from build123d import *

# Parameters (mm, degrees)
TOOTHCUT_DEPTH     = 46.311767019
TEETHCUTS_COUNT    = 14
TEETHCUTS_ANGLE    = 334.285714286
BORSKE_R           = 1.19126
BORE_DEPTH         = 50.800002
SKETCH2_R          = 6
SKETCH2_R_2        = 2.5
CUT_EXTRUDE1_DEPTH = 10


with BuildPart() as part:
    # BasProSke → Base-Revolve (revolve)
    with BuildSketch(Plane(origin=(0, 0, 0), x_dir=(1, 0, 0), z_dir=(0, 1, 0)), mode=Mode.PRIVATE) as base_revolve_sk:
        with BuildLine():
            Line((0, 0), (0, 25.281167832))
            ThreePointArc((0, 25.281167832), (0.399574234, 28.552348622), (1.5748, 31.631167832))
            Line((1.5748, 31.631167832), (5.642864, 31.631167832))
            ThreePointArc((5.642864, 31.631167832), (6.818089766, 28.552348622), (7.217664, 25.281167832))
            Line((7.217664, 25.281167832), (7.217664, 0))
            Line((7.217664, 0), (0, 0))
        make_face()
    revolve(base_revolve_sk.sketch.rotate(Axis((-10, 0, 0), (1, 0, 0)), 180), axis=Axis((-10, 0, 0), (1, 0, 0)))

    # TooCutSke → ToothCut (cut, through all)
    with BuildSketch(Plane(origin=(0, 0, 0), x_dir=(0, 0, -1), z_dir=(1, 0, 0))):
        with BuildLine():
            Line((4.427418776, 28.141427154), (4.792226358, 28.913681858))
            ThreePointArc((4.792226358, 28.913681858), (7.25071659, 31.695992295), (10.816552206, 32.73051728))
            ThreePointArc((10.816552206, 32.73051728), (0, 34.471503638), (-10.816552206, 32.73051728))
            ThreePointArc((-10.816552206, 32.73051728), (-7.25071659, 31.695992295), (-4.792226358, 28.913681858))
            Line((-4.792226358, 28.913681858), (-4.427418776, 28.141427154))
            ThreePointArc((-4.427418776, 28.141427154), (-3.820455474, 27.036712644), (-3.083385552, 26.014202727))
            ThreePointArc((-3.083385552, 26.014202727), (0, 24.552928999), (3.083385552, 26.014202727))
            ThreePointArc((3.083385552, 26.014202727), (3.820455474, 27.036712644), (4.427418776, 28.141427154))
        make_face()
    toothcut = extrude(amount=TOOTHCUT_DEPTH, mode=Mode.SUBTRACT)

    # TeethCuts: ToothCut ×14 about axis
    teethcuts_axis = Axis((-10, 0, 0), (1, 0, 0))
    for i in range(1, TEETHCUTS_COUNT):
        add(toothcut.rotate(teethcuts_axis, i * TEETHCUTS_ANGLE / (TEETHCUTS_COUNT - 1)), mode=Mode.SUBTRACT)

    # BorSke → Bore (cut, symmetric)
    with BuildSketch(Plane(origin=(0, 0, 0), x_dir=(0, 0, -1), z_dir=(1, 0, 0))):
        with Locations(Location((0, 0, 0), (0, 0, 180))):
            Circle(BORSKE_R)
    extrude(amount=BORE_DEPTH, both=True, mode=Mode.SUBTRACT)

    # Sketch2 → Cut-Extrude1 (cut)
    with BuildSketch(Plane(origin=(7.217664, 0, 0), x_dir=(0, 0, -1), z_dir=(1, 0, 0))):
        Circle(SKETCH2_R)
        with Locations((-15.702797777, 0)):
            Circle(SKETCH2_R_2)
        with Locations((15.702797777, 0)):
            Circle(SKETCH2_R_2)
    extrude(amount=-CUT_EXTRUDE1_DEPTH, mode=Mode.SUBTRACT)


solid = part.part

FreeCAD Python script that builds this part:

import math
import FreeCAD as App
import Part
import Sketcher

V = App.Vector
Q = App.Units.Quantity

doc = App.newDocument("Part")
params = doc.addObject("Spreadsheet::Sheet", "Params")
for row, (alias, value) in enumerate([
    ("revolution_angle", "360 deg"),
    ("pocket2_length", "101.600004 mm"),
    ("sketch4_diameter", "12 mm"),
    ("sketch4_diameter2", "5 mm"),
    ("pocket3_length", "10 mm"),
], start=1):
    params.set(f"A{row}", alias)
    params.set(f"B{row}", "=" + value)
    params.setAlias(f"B{row}", alias)

body = doc.addObject("PartDesign::Body", "Body")

# Sketch on XZ plane
sketch1 = body.newObject("Sketcher::SketchObject", "Sketch")
sketch1.AttachmentSupport = (doc.getObject("XZ_Plane"), [""])
sketch1.MapMode = "FlatFace"
sketch1.addGeometry(Part.LineSegment(V(0, -25.281168, 0), V(0, 0, 0)), False)
sketch1.addGeometry(Part.LineSegment(V(0, 0, 0), V(7.217664, 0, 0)), False)
sketch1.addGeometry(Part.LineSegment(V(7.217664, 0, 0), V(7.217664, -25.281168, 0)), False)
sketch1.addGeometry(Part.ArcOfCircle(Part.Circle(V(-6.372155, -25.281168, 0), V(0, 0, 1), 13.589819), math.radians(-27.856684), math.radians(0)), False)
sketch1.addGeometry(Part.LineSegment(V(5.642864, -31.631168, 0), V(1.5748, -31.631168, 0)), False)
sketch1.addGeometry(Part.ArcOfCircle(Part.Circle(V(13.589819, -25.281168, 0), V(0, 0, 1), 13.589819), math.radians(180), math.radians(207.856684)), False)
sketch1.addConstraint(Sketcher.Constraint("Coincident", 0, 2, 1, 1))
sketch1.addConstraint(Sketcher.Constraint("Coincident", 1, 2, 2, 1))
sketch1.addConstraint(Sketcher.Constraint("Tangent", 2, 2, 3, 2))
sketch1.addConstraint(Sketcher.Constraint("Coincident", 3, 1, 4, 1))
sketch1.addConstraint(Sketcher.Constraint("Coincident", 4, 2, 5, 2))
sketch1.addConstraint(Sketcher.Constraint("Tangent", 5, 1, 0, 1))
sketch1.addConstraint(Sketcher.Constraint("Vertical", 0))
sketch1.addConstraint(Sketcher.Constraint("Horizontal", 1))
sketch1.addConstraint(Sketcher.Constraint("Vertical", 2))
sketch1.addConstraint(Sketcher.Constraint("Horizontal", 4))
sketch1.addConstraint(Sketcher.Constraint("Coincident", 0, 2, -1, 1))
sketch1.addConstraint(Sketcher.Constraint("Equal", 3, 5))
sketch1.addConstraint(Sketcher.Constraint("Horizontal", 3, 3, 5, 3))
sketch1.addConstraint(Sketcher.Constraint("Radius", 3, Q("13.589819 mm")))
sketch1.addConstraint(Sketcher.Constraint("DistanceY", 3, 1, 2, 2, Q("6.35 mm")))
sketch1.addConstraint(Sketcher.Constraint("DistanceX", 1, 1, 1, 2, Q("7.217664 mm")))
sketch1.addConstraint(Sketcher.Constraint("DistanceY", 0, 1, 0, 2, Q("25.281168 mm")))
revolution = body.newObject("PartDesign::Revolution", "Revolution")
revolution.Profile = sketch1
revolution.ReferenceAxis = (sketch1, ["H_Axis"])
revolution.setExpression("Angle", "Params.revolution_angle")

# Sketch on YZ plane
sketch2 = body.newObject("Sketcher::SketchObject", "Sketch001")
sketch2.AttachmentSupport = (doc.getObject("YZ_Plane"), [""])
sketch2.MapMode = "FlatFace"
sketch2.addGeometry(Part.LineSegment(V(28.141427, -4.427419, 0), V(28.913682, -4.792226, 0)), False)
sketch2.addGeometry(Part.ArcOfCircle(Part.Circle(V(26.067834, -10.816552, 0), V(0, 0, 1), 6.662684), math.radians(0), math.radians(64.714286)), False)
sketch2.addGeometry(Part.ArcOfCircle(Part.Circle(V(0, 0, 0), V(0, 0, 1), 34.471504), math.radians(-18.287326), math.radians(18.287326)), False)
sketch2.addGeometry(Part.ArcOfCircle(Part.Circle(V(26.067834, 10.816552, 0), V(0, 0, 1), 6.662684), math.radians(-64.714286), math.radians(0)), False)
sketch2.addGeometry(Part.LineSegment(V(28.913682, 4.792226, 0), V(28.141427, 4.427419, 0)), False)
sketch2.addGeometry(Part.ArcOfCircle(Part.Circle(V(32.550951, -4.907024, 0), V(0, 0, 1), 10.323552), math.radians(115.285714), math.radians(129.285714)), False)
sketch2.addGeometry(Part.ArcOfCircle(Part.Circle(V(28.536641, 0, 0), V(0, 0, 1), 3.983712), math.radians(129.285714), math.radians(230.714286)), False)
sketch2.addGeometry(Part.ArcOfCircle(Part.Circle(V(32.550951, 4.907024, 0), V(0, 0, 1), 10.323552), math.radians(-129.285714), math.radians(-115.285714)), False)
sketch2.addConstraint(Sketcher.Constraint("Tangent", 0, 2, 1, 2))
sketch2.addConstraint(Sketcher.Constraint("Coincident", 1, 1, 2, 1))
sketch2.addConstraint(Sketcher.Constraint("Coincident", 2, 2, 3, 2))
sketch2.addConstraint(Sketcher.Constraint("Tangent", 3, 1, 4, 1))
sketch2.addConstraint(Sketcher.Constraint("Tangent", 4, 2, 5, 1))
sketch2.addConstraint(Sketcher.Constraint("Tangent", 5, 2, 6, 1))
sketch2.addConstraint(Sketcher.Constraint("Tangent", 6, 2, 7, 1))
sketch2.addConstraint(Sketcher.Constraint("Tangent", 7, 2, 0, 1))
sketch2.addConstraint(Sketcher.Constraint("Coincident", 2, 3, -1, 1))
sketch2.addConstraint(Sketcher.Constraint("Equal", 1, 3))
sketch2.addConstraint(Sketcher.Constraint("Equal", 5, 7))
sketch2.addConstraint(Sketcher.Constraint("Symmetric", 1, 3, 3, 3, -1))
sketch2.addConstraint(Sketcher.Constraint("Symmetric", 5, 3, 7, 3, -1))
sketch2.addConstraint(Sketcher.Constraint("Horizontal", 3, 3, 2, 2))
sketch2.addConstraint(Sketcher.Constraint("Radius", 5, Q("10.323552 mm")))
sketch2.addConstraint(Sketcher.Constraint("Radius", 1, Q("6.662684 mm")))
sketch2.addConstraint(Sketcher.Constraint("Radius", 2, Q("34.471504 mm")))
sketch2.addConstraint(Sketcher.Constraint("Radius", 6, Q("3.983712 mm")))
sketch2.addConstraint(Sketcher.Constraint("DistanceX", -1, 1, 5, 3, Q("32.550951 mm")))
sketch2.addConstraint(Sketcher.Constraint("DistanceX", -1, 1, 6, 3, Q("28.536641 mm")))
sketch2.addConstraint(Sketcher.Constraint("DistanceX", -1, 1, 0, 2, Q("28.913682 mm")))
pocket1 = body.newObject("PartDesign::Pocket", "Pocket")
pocket1.Profile = sketch2
pocket1.Type = "ThroughAll"
pocket1.Reversed = True
doc.recompute()

polarpattern = body.newObject("PartDesign::PolarPattern", "PolarPattern")
polarpattern.Originals = [pocket1]
polarpattern.Axis = (doc.getObject("X_Axis"), [""])
polarpattern.Angle = 360
polarpattern.Occurrences = 14
body.Tip = polarpattern

# Sketch on YZ plane
sketch3 = body.newObject("Sketcher::SketchObject", "Sketch002")
sketch3.AttachmentSupport = (doc.getObject("YZ_Plane"), [""])
sketch3.MapMode = "FlatFace"
sketch3.addGeometry(Part.Circle(V(0, 0, 0), V(0, 0, 1), 1.19126), False)
sketch3.addConstraint(Sketcher.Constraint("Coincident", 0, 3, -1, 1))
sketch3.addConstraint(Sketcher.Constraint("Diameter", 0, Q("2.38252 mm")))
pocket2 = body.newObject("PartDesign::Pocket", "Pocket001")
pocket2.Profile = sketch3
pocket2.setExpression("Length", "Params.pocket2_length")
pocket2.Midplane = True

# Sketch on YZ plane
sketch4 = body.newObject("Sketcher::SketchObject", "Sketch003")
sketch4.AttachmentSupport = (doc.getObject("YZ_Plane"), [""])
sketch4.MapMode = "FlatFace"
sketch4.AttachmentOffset = App.Placement(V(0, 0, 7.217664), App.Rotation())
sketch4.addGeometry(Part.Circle(V(0, 0, 0), V(0, 0, 1), 6), False)
sketch4.addGeometry(Part.Circle(V(0, 15.702798, 0), V(0, 0, 1), 2.5), False)
sketch4.addGeometry(Part.Circle(V(0, -15.702798, 0), V(0, 0, 1), 2.5), False)
sketch4.addConstraint(Sketcher.Constraint("Coincident", 0, 3, -1, 1))
sketch4.addConstraint(Sketcher.Constraint("Equal", 1, 2))
sketch4.addConstraint(Sketcher.Constraint("Symmetric", 1, 3, 2, 3, -1, 1))
sketch4.addConstraint(Sketcher.Constraint("PointOnObject", 1, 3, -2))
sketch4.addConstraint(Sketcher.Constraint("Diameter", 0, Q("12 mm")))
sketch4.addConstraint(Sketcher.Constraint("Diameter", 1, Q("5 mm")))
sketch4.addConstraint(Sketcher.Constraint("DistanceY", -1, 1, 1, 3, Q("15.702798 mm")))
sketch4.setExpression("Constraints[4]", "Params.sketch4_diameter")
sketch4.setExpression("Constraints[5]", "Params.sketch4_diameter2")
pocket3 = body.newObject("PartDesign::Pocket", "Pocket002")
pocket3.Profile = sketch4
pocket3.setExpression("Length", "Params.pocket3_length")

doc.recompute()
